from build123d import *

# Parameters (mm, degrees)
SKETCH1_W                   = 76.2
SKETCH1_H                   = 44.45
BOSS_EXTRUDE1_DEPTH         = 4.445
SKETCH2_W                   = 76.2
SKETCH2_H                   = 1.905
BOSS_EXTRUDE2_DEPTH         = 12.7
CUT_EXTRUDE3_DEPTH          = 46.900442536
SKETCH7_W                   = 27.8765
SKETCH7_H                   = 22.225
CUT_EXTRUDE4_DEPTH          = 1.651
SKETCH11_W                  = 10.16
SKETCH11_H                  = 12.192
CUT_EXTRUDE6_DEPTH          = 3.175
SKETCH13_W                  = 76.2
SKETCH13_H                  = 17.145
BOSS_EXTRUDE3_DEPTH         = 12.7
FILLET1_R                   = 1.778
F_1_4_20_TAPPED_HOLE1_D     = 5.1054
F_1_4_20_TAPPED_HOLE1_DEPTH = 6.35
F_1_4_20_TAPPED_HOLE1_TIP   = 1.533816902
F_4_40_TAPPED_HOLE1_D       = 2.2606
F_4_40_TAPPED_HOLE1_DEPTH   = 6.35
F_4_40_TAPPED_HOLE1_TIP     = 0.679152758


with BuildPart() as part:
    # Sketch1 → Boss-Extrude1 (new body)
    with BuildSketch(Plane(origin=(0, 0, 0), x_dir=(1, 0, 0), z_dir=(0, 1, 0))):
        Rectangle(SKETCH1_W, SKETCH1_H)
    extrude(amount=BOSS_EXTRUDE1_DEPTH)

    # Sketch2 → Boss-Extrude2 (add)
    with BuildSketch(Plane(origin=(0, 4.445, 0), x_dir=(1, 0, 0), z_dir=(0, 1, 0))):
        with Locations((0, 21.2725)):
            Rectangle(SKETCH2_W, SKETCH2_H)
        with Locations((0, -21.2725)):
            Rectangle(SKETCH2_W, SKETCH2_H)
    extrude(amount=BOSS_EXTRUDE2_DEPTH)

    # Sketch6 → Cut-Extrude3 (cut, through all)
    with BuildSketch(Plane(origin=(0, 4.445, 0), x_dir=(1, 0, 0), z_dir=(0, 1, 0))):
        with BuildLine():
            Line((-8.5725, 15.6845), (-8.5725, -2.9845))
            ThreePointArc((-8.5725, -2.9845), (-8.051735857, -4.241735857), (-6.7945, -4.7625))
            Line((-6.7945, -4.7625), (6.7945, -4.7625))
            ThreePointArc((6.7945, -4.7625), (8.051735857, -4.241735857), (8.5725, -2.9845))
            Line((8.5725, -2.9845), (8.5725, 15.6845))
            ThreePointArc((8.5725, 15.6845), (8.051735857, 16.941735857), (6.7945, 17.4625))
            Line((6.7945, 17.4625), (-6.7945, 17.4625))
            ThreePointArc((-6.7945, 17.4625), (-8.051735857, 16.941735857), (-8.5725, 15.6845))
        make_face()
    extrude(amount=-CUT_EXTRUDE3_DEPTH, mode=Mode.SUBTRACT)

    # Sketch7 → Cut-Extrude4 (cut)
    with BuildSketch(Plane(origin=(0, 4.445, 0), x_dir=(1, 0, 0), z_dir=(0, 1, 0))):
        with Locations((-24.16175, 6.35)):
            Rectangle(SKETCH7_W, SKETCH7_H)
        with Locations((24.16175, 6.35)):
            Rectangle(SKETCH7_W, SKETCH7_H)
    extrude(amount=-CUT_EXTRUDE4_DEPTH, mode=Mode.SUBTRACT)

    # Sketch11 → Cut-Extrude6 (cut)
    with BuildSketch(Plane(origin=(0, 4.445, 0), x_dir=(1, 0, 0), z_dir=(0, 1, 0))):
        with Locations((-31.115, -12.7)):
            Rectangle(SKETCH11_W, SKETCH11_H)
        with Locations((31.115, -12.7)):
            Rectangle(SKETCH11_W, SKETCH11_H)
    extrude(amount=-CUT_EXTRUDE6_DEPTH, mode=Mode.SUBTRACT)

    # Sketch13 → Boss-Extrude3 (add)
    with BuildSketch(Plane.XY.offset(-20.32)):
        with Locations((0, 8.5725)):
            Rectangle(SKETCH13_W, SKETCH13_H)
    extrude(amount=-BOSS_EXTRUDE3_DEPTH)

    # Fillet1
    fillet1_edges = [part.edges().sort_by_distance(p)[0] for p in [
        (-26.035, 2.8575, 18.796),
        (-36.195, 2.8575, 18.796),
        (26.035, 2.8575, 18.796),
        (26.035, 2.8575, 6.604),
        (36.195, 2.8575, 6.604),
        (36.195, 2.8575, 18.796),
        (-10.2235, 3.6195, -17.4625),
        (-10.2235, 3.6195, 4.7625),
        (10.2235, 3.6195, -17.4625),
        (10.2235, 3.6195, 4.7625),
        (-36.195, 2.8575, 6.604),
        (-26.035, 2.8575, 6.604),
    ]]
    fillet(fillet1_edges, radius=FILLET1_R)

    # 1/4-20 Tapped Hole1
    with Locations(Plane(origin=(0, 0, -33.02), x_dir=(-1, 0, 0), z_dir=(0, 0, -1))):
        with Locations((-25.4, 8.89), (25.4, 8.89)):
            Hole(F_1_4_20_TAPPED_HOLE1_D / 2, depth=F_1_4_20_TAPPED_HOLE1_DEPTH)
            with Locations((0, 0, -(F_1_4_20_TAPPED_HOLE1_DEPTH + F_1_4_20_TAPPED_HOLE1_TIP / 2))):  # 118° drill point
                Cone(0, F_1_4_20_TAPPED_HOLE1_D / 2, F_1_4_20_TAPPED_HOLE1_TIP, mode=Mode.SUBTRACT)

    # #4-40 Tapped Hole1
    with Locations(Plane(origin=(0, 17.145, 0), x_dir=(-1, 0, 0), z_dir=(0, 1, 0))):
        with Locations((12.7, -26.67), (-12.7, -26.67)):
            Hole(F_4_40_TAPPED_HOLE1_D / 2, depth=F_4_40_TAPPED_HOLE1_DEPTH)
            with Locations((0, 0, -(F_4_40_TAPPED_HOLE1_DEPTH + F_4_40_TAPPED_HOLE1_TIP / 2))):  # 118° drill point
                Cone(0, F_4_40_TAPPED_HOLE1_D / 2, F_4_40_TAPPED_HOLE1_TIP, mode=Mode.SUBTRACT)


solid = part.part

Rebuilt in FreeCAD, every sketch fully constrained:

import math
import FreeCAD as App
import Part
import Sketcher
Q = App.Units.Quantity


def edges_at(feature, points):
    """Names of the edges that pass closest to the given points."""
    edges = feature.Shape.Edges
    near = lambda p: min(range(len(edges)), key=lambda i: edges[i].distToShape(Part.Vertex(*p))[0])
    return sorted({f"Edge{near(p) + 1}" for p in points})


def add_polygon(sketch, points):
    """Adds a closed chain of lines whose ends are joined by coincident constraints."""
    first, n = sketch.GeometryCount, len(points)
    for a, b in zip(points, points[1:] + points[:1]):
        sketch.addGeometry(Part.LineSegment(App.Vector(*a, 0), App.Vector(*b, 0)), False)
    for i in range(n):
        sketch.addConstraint(Sketcher.Constraint("Coincident", first + i, 2, first + (i + 1) % n, 1))

doc = App.newDocument("Part")
body = doc.addObject("PartDesign::Body", "Body")

sketch1 = body.newObject("Sketcher::SketchObject", "Sketch")
sketch1.AttachmentSupport = (doc.getObject("XZ_Plane"), [""])
sketch1.MapMode = "FlatFace"
add_polygon(sketch1, [(-38.1, -22.225), (-38.1, 22.225), (38.1, 22.225), (38.1, -22.225)])
sketch1.addConstraint(Sketcher.Constraint("Vertical", 0))
sketch1.addConstraint(Sketcher.Constraint("Horizontal", 1))
sketch1.addConstraint(Sketcher.Constraint("Vertical", 2))
sketch1.addConstraint(Sketcher.Constraint("Horizontal", 3))
sketch1.addConstraint(Sketcher.Constraint("Symmetric", 0, 2, 2, 2, -1, 1))
sketch1.addConstraint(Sketcher.Constraint("DistanceX", 1, 1, 1, 2, Q("3 in")))
sketch1.addConstraint(Sketcher.Constraint("DistanceY", 0, 1, 0, 2, Q("1.75 in")))
pad1 = body.newObject("PartDesign::Pad", "Pad")
pad1.Profile = sketch1
pad1.Length = Q("0.175 in")
pad1.Reversed = True

sketch2 = body.newObject("Sketcher::SketchObject", "Sketch001")
sketch2.AttachmentSupport = (doc.getObject("XZ_Plane"), [""])
sketch2.MapMode = "FlatFace"
sketch2.AttachmentOffset = App.Placement(App.Vector(0, 0, -0.175 * 25.4), App.Rotation())
add_polygon(sketch2, [(-38.1, -22.225), (-38.1, -20.32), (38.1, -20.32), (38.1, -22.225)])
add_polygon(sketch2, [(-38.1, 20.32), (-38.1, 22.225), (38.1, 22.225), (38.1, 20.32)])
sketch2.addConstraint(Sketcher.Constraint("Vertical", 0))
sketch2.addConstraint(Sketcher.Constraint("Horizontal", 1))
sketch2.addConstraint(Sketcher.Constraint("Vertical", 2))
sketch2.addConstraint(Sketcher.Constraint("Horizontal", 3))
sketch2.addConstraint(Sketcher.Constraint("Vertical", 4))
sketch2.addConstraint(Sketcher.Constraint("Horizontal", 5))
sketch2.addConstraint(Sketcher.Constraint("Vertical", 6))
sketch2.addConstraint(Sketcher.Constraint("Horizontal", 7))
sketch2.addConstraint(Sketcher.Constraint("Symmetric", 2, 2, 4, 2, -1, 1))
sketch2.addConstraint(Sketcher.Constraint("Symmetric", 0, 2, 6, 2, -1, 1))
sketch2.addConstraint(Sketcher.Constraint("Vertical", 3, 2, 4, 2))
sketch2.addConstraint(Sketcher.Constraint("DistanceX", 1, 1, 1, 2, Q("3 in")))
sketch2.addConstraint(Sketcher.Constraint("DistanceY", 0, 2, -1, 1, Q("0.8 in")))
sketch2.addConstraint(Sketcher.Constraint("DistanceY", 0, 1, 0, 2, Q("0.075 in")))
pad2 = body.newObject("PartDesign::Pad", "Pad001")
pad2.Profile = sketch2
pad2.Length = Q("0.5 in")
pad2.Reversed = True

sketch3 = body.newObject("Sketcher::SketchObject", "Sketch002")
sketch3.AttachmentSupport = (doc.getObject("XZ_Plane"), [""])
sketch3.MapMode = "FlatFace"
sketch3.AttachmentOffset = App.Placement(App.Vector(0, 0, -0.175 * 25.4), App.Rotation())
sketch3.addGeometry(Part.LineSegment(App.Vector(-8.5725, -15.6845, 0), App.Vector(-8.5725, 2.9845, 0)), False)
sketch3.addGeometry(Part.ArcOfCircle(Part.Circle(App.Vector(-6.7945, 2.9845, 0), App.Vector(0, 0, 1), 1.778), math.radians(90), math.radians(180)), False)
sketch3.addGeometry(Part.LineSegment(App.Vector(-6.7945, 4.7625, 0), App.Vector(6.7945, 4.7625, 0)), False)
sketch3.addGeometry(Part.ArcOfCircle(Part.Circle(App.Vector(6.7945, 2.9845, 0), App.Vector(0, 0, 1), 1.778), math.radians(0), math.radians(90)), False)
sketch3.addGeometry(Part.LineSegment(App.Vector(8.5725, 2.9845, 0), App.Vector(8.5725, -15.6845, 0)), False)
sketch3.addGeometry(Part.ArcOfCircle(Part.Circle(App.Vector(6.7945, -15.6845, 0), App.Vector(0, 0, 1), 1.778), math.radians(-90), math.radians(0)), False)
sketch3.addGeometry(Part.LineSegment(App.Vector(6.7945, -17.4625, 0), App.Vector(-6.7945, -17.4625, 0)), False)
sketch3.addGeometry(Part.ArcOfCircle(Part.Circle(App.Vector(-6.7945, -15.6845, 0), App.Vector(0, 0, 1), 1.778), math.radians(180), math.radians(270)), False)
sketch3.addConstraint(Sketcher.Constraint("Tangent", 0, 2, 1, 2))
sketch3.addConstraint(Sketcher.Constraint("Tangent", 1, 1, 2, 1))
sketch3.addConstraint(Sketcher.Constraint("Tangent", 2, 2, 3, 2))
sketch3.addConstraint(Sketcher.Constraint("Tangent", 3, 1, 4, 1))
sketch3.addConstraint(Sketcher.Constraint("Tangent", 4, 2, 5, 2))
sketch3.addConstraint(Sketcher.Constraint("Tangent", 5, 1, 6, 1))
sketch3.addConstraint(Sketcher.Constraint("Tangent", 6, 2, 7, 2))
sketch3.addConstraint(Sketcher.Constraint("Tangent", 7, 1, 0, 1))
sketch3.addConstraint(Sketcher.Constraint("Vertical", 0))
sketch3.addConstraint(Sketcher.Constraint("Horizontal", 2))
sketch3.addConstraint(Sketcher.Constraint("Vertical", 4))
sketch3.addConstraint(Sketcher.Constraint("Horizontal", 6))
sketch3.addConstraint(Sketcher.Constraint("Equal", 1, 3))
sketch3.addConstraint(Sketcher.Constraint("Equal", 3, 5))
sketch3.addConstraint(Sketcher.Constraint("Equal", 5, 7))
sketch3.addConstraint(Sketcher.Constraint("Radius", 1, Q("0.07 in")))
sketch3.addConstraint(Sketcher.Constraint("DistanceX", 2, 1, 2, 2, Q("0.535 in")))
sketch3.addConstraint(Sketcher.Constraint("DistanceY", 0, 1, 0, 2, Q("0.735 in")))
sketch3.addConstraint(Sketcher.Constraint("DistanceY", -1, 1, 1, 1, Q("0.1875 in")))
sketch3.addConstraint(Sketcher.Constraint("DistanceX", 1, 3, -1, 1, Q("0.2675 in")))
pocket1 = body.newObject("PartDesign::Pocket", "Pocket")
pocket1.Profile = sketch3
pocket1.Type = "ThroughAll"
pocket1.Reversed = True

sketch4 = body.newObject("Sketcher::SketchObject", "Sketch003")
sketch4.AttachmentSupport = (doc.getObject("XZ_Plane"), [""])
sketch4.MapMode = "FlatFace"
sketch4.AttachmentOffset = App.Placement(App.Vector(0, 0, -0.175 * 25.4), App.Rotation())
add_polygon(sketch4, [(-38.1, -17.4625), (-38.1, 4.7625), (-10.2235, 4.7625), (-10.2235, -17.4625)])
add_polygon(sketch4, [(10.2235, -17.4625), (10.2235, 4.7625), (38.1, 4.7625), (38.1, -17.4625)])
sketch4.addConstraint(Sketcher.Constraint("Vertical", 0))
sketch4.addConstraint(Sketcher.Constraint("Horizontal", 1))
sketch4.addConstraint(Sketcher.Constraint("Vertical", 2))
sketch4.addConstraint(Sketcher.Constraint("Horizontal", 3))
sketch4.addConstraint(Sketcher.Constraint("Vertical", 4))
sketch4.addConstraint(Sketcher.Constraint("Horizontal", 5))
sketch4.addConstraint(Sketcher.Constraint("Vertical", 6))
sketch4.addConstraint(Sketcher.Constraint("Horizontal", 7))
sketch4.addConstraint(Sketcher.Constraint("Symmetric", 1, 2, 4, 2, -2))
sketch4.addConstraint(Sketcher.Constraint("Symmetric", 3, 2, 6, 2, -2))
sketch4.addConstraint(Sketcher.Constraint("DistanceX", 0, 2, 5, 2, Q("3 in")))
sketch4.addConstraint(Sketcher.Constraint("DistanceY", 0, 1, 0, 2, Q("0.875 in")))
sketch4.addConstraint(Sketcher.Constraint("DistanceX", 1, 1, 1, 2, Q("1.0975 in")))
sketch4.addConstraint(Sketcher.Constraint("DistanceY", -1, 1, 0, 2, Q("0.1875 in")))
pocket2 = body.newObject("PartDesign::Pocket", "Pocket001")
pocket2.Profile = sketch4
pocket2.Length = Q("0.065 in")
pocket2.Reversed = True

sketch5 = body.newObject("Sketcher::SketchObject", "Sketch004")
sketch5.AttachmentSupport = (doc.getObject("XZ_Plane"), [""])
sketch5.MapMode = "FlatFace"
sketch5.AttachmentOffset = App.Placement(App.Vector(0, 0, -0.175 * 25.4), App.Rotation())
add_polygon(sketch5, [(-36.195, 6.604), (-36.195, 18.796), (-26.035, 18.796), (-26.035, 6.604)])
add_polygon(sketch5, [(26.035, 6.604), (26.035, 18.796), (36.195, 18.796), (36.195, 6.604)])
sketch5.addConstraint(Sketcher.Constraint("Vertical", 0))
sketch5.addConstraint(Sketcher.Constraint("Horizontal", 1))
sketch5.addConstraint(Sketcher.Constraint("Vertical", 2))
sketch5.addConstraint(Sketcher.Constraint("Horizontal", 3))
sketch5.addConstraint(Sketcher.Constraint("Vertical", 4))
sketch5.addConstraint(Sketcher.Constraint("Horizontal", 5))
sketch5.addConstraint(Sketcher.Constraint("Vertical", 6))
sketch5.addConstraint(Sketcher.Constraint("Horizontal", 7))
sketch5.addConstraint(Sketcher.Constraint("Symmetric", 1, 2, 4, 2, -2))
sketch5.addConstraint(Sketcher.Constraint("Symmetric", 3, 2, 6, 2, -2))
sketch5.addConstraint(Sketcher.Constraint("DistanceX", 1, 1, 1, 2, Q("0.4 in")))
sketch5.addConstraint(Sketcher.Constraint("DistanceY", 0, 1, 0, 2, Q("0.48 in")))
sketch5.addConstraint(Sketcher.Constraint("DistanceY", -1, 1, 0, 2, Q("0.74 in")))
sketch5.addConstraint(Sketcher.Constraint("DistanceX", 1, 2, 4, 2, Q("2.05 in")))
pocket3 = body.newObject("PartDesign::Pocket", "Pocket002")
pocket3.Profile = sketch5
pocket3.Length = Q("0.125 in")
pocket3.Reversed = True

sketch6 = body.newObject("Sketcher::SketchObject", "Sketch005")
sketch6.AttachmentSupport = (doc.getObject("XY_Plane"), [""])
sketch6.MapMode = "FlatFace"
sketch6.AttachmentOffset = App.Placement(App.Vector(0, 0, -0.8 * 25.4), App.Rotation())
add_polygon(sketch6, [(-38.1, 17.145), (-38.1, 0), (38.1, 0), (38.1, 17.145)])
sketch6.addConstraint(Sketcher.Constraint("Vertical", 0))
sketch6.addConstraint(Sketcher.Constraint("Horizontal", 1))
sketch6.addConstraint(Sketcher.Constraint("Vertical", 2))
sketch6.addConstraint(Sketcher.Constraint("Horizontal", 3))
sketch6.addConstraint(Sketcher.Constraint("Symmetric", 0, 2, 1, 2, -1, 1))
sketch6.addConstraint(Sketcher.Constraint("DistanceX", 1, 1, 1, 2, Q("3 in")))
sketch6.addConstraint(Sketcher.Constraint("DistanceY", 0, 2, 0, 1, Q("0.675 in")))
pad3 = body.newObject("PartDesign::Pad", "Pad002")
pad3.Profile = sketch6
pad3.Length = Q("0.5 in")
pad3.Reversed = True
doc.recompute()

fillet = body.newObject("PartDesign::Fillet", "Fillet")
fillet.Base = (pad3, edges_at(pad3, [
    (-26.035, 2.857, 18.796),
    (-36.195, 2.857, 18.796),
    (26.035, 2.857, 18.796),
    (26.035, 2.857, 6.604),
    (36.195, 2.857, 6.604),
    (36.195, 2.857, 18.796),
    (-10.223, 3.619, -17.462),
    (-10.223, 3.619, 4.763),
    (10.223, 3.619, -17.462),
    (10.223, 3.619, 4.763),
    (-36.195, 2.857, 6.604),
    (-26.035, 2.857, 6.604),
]))
fillet.Radius = Q("0.07 in")

sketch7 = body.newObject("Sketcher::SketchObject", "Sketch006")
sketch7.AttachmentSupport = (doc.getObject("XY_Plane"), [""])
sketch7.MapMode = "FlatFace"
sketch7.AttachmentOffset = App.Placement(App.Vector(0, 0, -1.3 * 25.4), App.Rotation())
sketch7.addGeometry(Part.Circle(App.Vector(25.4, 8.89, 0), App.Vector(0, 0, 1), 2.5527), False)
sketch7.addGeometry(Part.Circle(App.Vector(-25.4, 8.89, 0), App.Vector(0, 0, 1), 2.5527), False)
sketch7.addConstraint(Sketcher.Constraint("Equal", 0, 1))
sketch7.addConstraint(Sketcher.Constraint("Symmetric", 0, 3, 1, 3, -2))
sketch7.addConstraint(Sketcher.Constraint("Diameter", 0, Q("0.201 in")))
sketch7.addConstraint(Sketcher.Constraint("DistanceX", -1, 1, 0, 3, Q("1 in")))
sketch7.addConstraint(Sketcher.Constraint("DistanceY", -1, 1, 0, 3, Q("0.35 in")))
doc.recompute()
hole = body.newObject("PartDesign::Hole", "Hole")
hole.Profile = sketch7
hole.ThreadType = "None"
hole.Diameter = Q("0.201 in")
hole.DepthType = "Dimension"
hole.Depth = Q("0.25 in")
hole.DrillPoint = "Angled"
hole.DrillPointAngle = 118
hole.Reversed = True

sketch8 = body.newObject("Sketcher::SketchObject", "Sketch007")
sketch8.AttachmentSupport = (doc.getObject("XZ_Plane"), [""])
sketch8.MapMode = "FlatFace"
sketch8.AttachmentOffset = App.Placement(App.Vector(0, 0, -0.675 * 25.4), App.Rotation())
sketch8.addGeometry(Part.Circle(App.Vector(-12.7, -26.67, 0), App.Vector(0, 0, 1), 1.1303), False)
sketch8.addGeometry(Part.Circle(App.Vector(12.7, -26.67, 0), App.Vector(0, 0, 1), 1.1303), False)
sketch8.addConstraint(Sketcher.Constraint("Equal", 0, 1))
sketch8.addConstraint(Sketcher.Constraint("Symmetric", 0, 3, 1, 3, -2))
sketch8.addConstraint(Sketcher.Constraint("Diameter", 0, Q("0.089 in")))
sketch8.addConstraint(Sketcher.Constraint("DistanceX", 0, 3, 1, 3, Q("1 in")))
sketch8.addConstraint(Sketcher.Constraint("DistanceY", 0, 3, -1, 1, Q("1.05 in")))
doc.recompute()
hole2 = body.newObject("PartDesign::Hole", "Hole001")
hole2.Profile = sketch8
hole2.ThreadType = "None"
hole2.Diameter = Q("0.089 in")
hole2.DepthType = "Dimension"
hole2.Depth = Q("0.25 in")
hole2.DrillPoint = "Angled"
hole2.DrillPointAngle = 118
hole2.Reversed = True

doc.recompute()
